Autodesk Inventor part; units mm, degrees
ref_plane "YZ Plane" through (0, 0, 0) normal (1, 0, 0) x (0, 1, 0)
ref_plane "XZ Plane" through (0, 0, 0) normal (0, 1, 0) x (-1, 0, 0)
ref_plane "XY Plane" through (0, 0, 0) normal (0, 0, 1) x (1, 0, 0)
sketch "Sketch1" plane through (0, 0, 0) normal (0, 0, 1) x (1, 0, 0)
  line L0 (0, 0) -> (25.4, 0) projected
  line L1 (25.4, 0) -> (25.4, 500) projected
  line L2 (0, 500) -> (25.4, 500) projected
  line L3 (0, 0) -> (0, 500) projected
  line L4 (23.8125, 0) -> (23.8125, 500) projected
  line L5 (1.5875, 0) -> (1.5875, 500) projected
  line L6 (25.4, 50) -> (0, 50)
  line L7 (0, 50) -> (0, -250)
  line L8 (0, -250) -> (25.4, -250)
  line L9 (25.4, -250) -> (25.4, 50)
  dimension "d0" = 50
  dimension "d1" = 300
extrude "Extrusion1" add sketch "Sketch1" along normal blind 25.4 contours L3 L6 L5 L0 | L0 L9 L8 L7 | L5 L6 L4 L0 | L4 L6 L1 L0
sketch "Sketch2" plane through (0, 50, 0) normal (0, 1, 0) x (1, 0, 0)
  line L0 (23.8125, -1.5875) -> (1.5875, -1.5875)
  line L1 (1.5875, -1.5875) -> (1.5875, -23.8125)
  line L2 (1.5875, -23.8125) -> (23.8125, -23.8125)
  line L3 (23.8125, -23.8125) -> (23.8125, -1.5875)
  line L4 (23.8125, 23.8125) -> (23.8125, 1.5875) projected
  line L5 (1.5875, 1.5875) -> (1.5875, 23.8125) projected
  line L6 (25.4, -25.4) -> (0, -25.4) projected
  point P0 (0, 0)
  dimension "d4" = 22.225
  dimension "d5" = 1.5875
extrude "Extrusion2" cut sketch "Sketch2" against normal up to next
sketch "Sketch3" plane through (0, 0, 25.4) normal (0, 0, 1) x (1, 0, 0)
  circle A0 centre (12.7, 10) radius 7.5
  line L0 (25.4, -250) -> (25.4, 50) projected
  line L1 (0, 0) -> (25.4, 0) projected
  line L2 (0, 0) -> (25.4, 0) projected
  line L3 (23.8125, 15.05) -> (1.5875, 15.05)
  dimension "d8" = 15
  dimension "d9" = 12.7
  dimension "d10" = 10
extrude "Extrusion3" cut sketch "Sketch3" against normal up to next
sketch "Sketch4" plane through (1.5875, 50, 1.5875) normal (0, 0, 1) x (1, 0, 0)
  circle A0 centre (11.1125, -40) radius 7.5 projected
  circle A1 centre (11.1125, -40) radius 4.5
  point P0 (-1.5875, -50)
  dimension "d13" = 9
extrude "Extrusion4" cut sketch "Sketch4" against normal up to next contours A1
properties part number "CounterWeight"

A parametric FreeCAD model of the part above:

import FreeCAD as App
import Part
import Sketcher

V = App.Vector
Q = App.Units.Quantity

doc = App.newDocument("Part")
body = doc.addObject("PartDesign::Body", "Body")

# Sketch on XY plane
sketch1 = body.newObject("Sketcher::SketchObject", "Sketch")
sketch1.AttachmentSupport = (doc.getObject("XY_Plane"), [""])
sketch1.MapMode = "FlatFace"
sketch1.addGeometry(Part.LineSegment(V(0, 50, 0), V(0, -250, 0)), False)
sketch1.addGeometry(Part.LineSegment(V(0, -250, 0), V(25.4, -250, 0)), False)
sketch1.addGeometry(Part.LineSegment(V(25.4, -250, 0), V(25.4, 50, 0)), False)
sketch1.addGeometry(Part.LineSegment(V(25.4, 50, 0), V(0, 50, 0)), False)
sketch1.addConstraint(Sketcher.Constraint("Coincident", 0, 2, 1, 1))
sketch1.addConstraint(Sketcher.Constraint("Coincident", 1, 2, 2, 1))
sketch1.addConstraint(Sketcher.Constraint("Coincident", 2, 2, 3, 1))
sketch1.addConstraint(Sketcher.Constraint("Coincident", 3, 2, 0, 1))
sketch1.addConstraint(Sketcher.Constraint("Vertical", 0))
sketch1.addConstraint(Sketcher.Constraint("Horizontal", 1))
sketch1.addConstraint(Sketcher.Constraint("Vertical", 2))
sketch1.addConstraint(Sketcher.Constraint("Horizontal", 3))
sketch1.addConstraint(Sketcher.Constraint("PointOnObject", 0, 2, -2))
sketch1.addConstraint(Sketcher.Constraint("DistanceY", 0, 2, 0, 1, Q("300 mm")))
sketch1.addConstraint(Sketcher.Constraint("DistanceY", -1, 1, 2, 2, Q("50 mm")))
sketch1.addConstraint(Sketcher.Constraint("DistanceX", 1, 1, 1, 2, Q("25.4 mm")))
pad1 = body.newObject("PartDesign::Pad", "Pad")
pad1.Profile = sketch1
pad1.Length = 25.4

# Sketch on XZ plane
sketch2 = body.newObject("Sketcher::SketchObject", "Sketch001")
sketch2.AttachmentSupport = (doc.getObject("XZ_Plane"), [""])
sketch2.MapMode = "FlatFace"
sketch2.AttachmentOffset = App.Placement(V(0, 0, -50), App.Rotation())
sketch2.addGeometry(Part.LineSegment(V(23.8125, 23.8125, 0), V(23.8125, 1.5875, 0)), False)
sketch2.addGeometry(Part.LineSegment(V(23.8125, 1.5875, 0), V(1.5875, 1.5875, 0)), False)
sketch2.addGeometry(Part.LineSegment(V(1.5875, 1.5875, 0), V(1.5875, 23.8125, 0)), False)
sketch2.addGeometry(Part.LineSegment(V(1.5875, 23.8125, 0), V(23.8125, 23.8125, 0)), False)
sketch2.addConstraint(Sketcher.Constraint("Coincident", 0, 2, 1, 1))
sketch2.addConstraint(Sketcher.Constraint("Coincident", 1, 2, 2, 1))
sketch2.addConstraint(Sketcher.Constraint("Coincident", 2, 2, 3, 1))
sketch2.addConstraint(Sketcher.Constraint("Coincident", 3, 2, 0, 1))
sketch2.addConstraint(Sketcher.Constraint("Vertical", 0))
sketch2.addConstraint(Sketcher.Constraint("Horizontal", 1))
sketch2.addConstraint(Sketcher.Constraint("Vertical", 2))
sketch2.addConstraint(Sketcher.Constraint("Horizontal", 3))
sketch2.addConstraint(Sketcher.Constraint("Equal", 3, 0))
sketch2.addConstraint(Sketcher.Constraint("DistanceX", 1, 2, 1, 1, Q("22.225 mm")))
sketch2.addConstraint(Sketcher.Constraint("DistanceY", -1, 1, 0, 2, Q("1.5875 mm")))
sketch2.addConstraint(Sketcher.Constraint("DistanceX", -1, 1, 1, 2, Q("1.5875 mm")))
pocket1 = body.newObject("PartDesign::Pocket", "Pocket")
pocket1.Profile = sketch2
pocket1.Type = "UpToFirst"
pocket1.Reversed = True

# Sketch on XY plane
sketch3 = body.newObject("Sketcher::SketchObject", "Sketch002")
sketch3.AttachmentSupport = (doc.getObject("XY_Plane"), [""])
sketch3.MapMode = "FlatFace"
sketch3.AttachmentOffset = App.Placement(V(0, 0, 25.4), App.Rotation())
sketch3.addGeometry(Part.Circle(V(12.7, 10, 0), V(0, 0, 1), 7.5), False)
sketch3.addConstraint(Sketcher.Constraint("Diameter", 0, Q("15 mm")))
sketch3.addConstraint(Sketcher.Constraint("DistanceY", -1, 1, 0, 3, Q("10 mm")))
sketch3.addConstraint(Sketcher.Constraint("DistanceX", -1, 1, 0, 3, Q("12.7 mm")))
pocket2 = body.newObject("PartDesign::Pocket", "Pocket001")
pocket2.Profile = sketch3
pocket2.Type = "UpToFirst"

# Sketch on XY plane
sketch4 = body.newObject("Sketcher::SketchObject", "Sketch003")
sketch4.AttachmentSupport = (doc.getObject("XY_Plane"), [""])
sketch4.MapMode = "FlatFace"
sketch4.AttachmentOffset = App.Placement(V(0, 0, 1.5875), App.Rotation())
sketch4.addGeometry(Part.Circle(V(12.7, 10, 0), V(0, 0, 1), 4.5), False)
sketch4.addConstraint(Sketcher.Constraint("Diameter", 0, Q("9 mm")))
sketch4.addConstraint(Sketcher.Constraint("DistanceY", -1, 1, 0, 3, Q("10 mm")))
sketch4.addConstraint(Sketcher.Constraint("DistanceX", -1, 1, 0, 3, Q("12.7 mm")))
pocket3 = body.newObject("PartDesign::Pocket", "Pocket002")
pocket3.Profile = sketch4
pocket3.Type = "UpToFirst"

doc.recompute()
